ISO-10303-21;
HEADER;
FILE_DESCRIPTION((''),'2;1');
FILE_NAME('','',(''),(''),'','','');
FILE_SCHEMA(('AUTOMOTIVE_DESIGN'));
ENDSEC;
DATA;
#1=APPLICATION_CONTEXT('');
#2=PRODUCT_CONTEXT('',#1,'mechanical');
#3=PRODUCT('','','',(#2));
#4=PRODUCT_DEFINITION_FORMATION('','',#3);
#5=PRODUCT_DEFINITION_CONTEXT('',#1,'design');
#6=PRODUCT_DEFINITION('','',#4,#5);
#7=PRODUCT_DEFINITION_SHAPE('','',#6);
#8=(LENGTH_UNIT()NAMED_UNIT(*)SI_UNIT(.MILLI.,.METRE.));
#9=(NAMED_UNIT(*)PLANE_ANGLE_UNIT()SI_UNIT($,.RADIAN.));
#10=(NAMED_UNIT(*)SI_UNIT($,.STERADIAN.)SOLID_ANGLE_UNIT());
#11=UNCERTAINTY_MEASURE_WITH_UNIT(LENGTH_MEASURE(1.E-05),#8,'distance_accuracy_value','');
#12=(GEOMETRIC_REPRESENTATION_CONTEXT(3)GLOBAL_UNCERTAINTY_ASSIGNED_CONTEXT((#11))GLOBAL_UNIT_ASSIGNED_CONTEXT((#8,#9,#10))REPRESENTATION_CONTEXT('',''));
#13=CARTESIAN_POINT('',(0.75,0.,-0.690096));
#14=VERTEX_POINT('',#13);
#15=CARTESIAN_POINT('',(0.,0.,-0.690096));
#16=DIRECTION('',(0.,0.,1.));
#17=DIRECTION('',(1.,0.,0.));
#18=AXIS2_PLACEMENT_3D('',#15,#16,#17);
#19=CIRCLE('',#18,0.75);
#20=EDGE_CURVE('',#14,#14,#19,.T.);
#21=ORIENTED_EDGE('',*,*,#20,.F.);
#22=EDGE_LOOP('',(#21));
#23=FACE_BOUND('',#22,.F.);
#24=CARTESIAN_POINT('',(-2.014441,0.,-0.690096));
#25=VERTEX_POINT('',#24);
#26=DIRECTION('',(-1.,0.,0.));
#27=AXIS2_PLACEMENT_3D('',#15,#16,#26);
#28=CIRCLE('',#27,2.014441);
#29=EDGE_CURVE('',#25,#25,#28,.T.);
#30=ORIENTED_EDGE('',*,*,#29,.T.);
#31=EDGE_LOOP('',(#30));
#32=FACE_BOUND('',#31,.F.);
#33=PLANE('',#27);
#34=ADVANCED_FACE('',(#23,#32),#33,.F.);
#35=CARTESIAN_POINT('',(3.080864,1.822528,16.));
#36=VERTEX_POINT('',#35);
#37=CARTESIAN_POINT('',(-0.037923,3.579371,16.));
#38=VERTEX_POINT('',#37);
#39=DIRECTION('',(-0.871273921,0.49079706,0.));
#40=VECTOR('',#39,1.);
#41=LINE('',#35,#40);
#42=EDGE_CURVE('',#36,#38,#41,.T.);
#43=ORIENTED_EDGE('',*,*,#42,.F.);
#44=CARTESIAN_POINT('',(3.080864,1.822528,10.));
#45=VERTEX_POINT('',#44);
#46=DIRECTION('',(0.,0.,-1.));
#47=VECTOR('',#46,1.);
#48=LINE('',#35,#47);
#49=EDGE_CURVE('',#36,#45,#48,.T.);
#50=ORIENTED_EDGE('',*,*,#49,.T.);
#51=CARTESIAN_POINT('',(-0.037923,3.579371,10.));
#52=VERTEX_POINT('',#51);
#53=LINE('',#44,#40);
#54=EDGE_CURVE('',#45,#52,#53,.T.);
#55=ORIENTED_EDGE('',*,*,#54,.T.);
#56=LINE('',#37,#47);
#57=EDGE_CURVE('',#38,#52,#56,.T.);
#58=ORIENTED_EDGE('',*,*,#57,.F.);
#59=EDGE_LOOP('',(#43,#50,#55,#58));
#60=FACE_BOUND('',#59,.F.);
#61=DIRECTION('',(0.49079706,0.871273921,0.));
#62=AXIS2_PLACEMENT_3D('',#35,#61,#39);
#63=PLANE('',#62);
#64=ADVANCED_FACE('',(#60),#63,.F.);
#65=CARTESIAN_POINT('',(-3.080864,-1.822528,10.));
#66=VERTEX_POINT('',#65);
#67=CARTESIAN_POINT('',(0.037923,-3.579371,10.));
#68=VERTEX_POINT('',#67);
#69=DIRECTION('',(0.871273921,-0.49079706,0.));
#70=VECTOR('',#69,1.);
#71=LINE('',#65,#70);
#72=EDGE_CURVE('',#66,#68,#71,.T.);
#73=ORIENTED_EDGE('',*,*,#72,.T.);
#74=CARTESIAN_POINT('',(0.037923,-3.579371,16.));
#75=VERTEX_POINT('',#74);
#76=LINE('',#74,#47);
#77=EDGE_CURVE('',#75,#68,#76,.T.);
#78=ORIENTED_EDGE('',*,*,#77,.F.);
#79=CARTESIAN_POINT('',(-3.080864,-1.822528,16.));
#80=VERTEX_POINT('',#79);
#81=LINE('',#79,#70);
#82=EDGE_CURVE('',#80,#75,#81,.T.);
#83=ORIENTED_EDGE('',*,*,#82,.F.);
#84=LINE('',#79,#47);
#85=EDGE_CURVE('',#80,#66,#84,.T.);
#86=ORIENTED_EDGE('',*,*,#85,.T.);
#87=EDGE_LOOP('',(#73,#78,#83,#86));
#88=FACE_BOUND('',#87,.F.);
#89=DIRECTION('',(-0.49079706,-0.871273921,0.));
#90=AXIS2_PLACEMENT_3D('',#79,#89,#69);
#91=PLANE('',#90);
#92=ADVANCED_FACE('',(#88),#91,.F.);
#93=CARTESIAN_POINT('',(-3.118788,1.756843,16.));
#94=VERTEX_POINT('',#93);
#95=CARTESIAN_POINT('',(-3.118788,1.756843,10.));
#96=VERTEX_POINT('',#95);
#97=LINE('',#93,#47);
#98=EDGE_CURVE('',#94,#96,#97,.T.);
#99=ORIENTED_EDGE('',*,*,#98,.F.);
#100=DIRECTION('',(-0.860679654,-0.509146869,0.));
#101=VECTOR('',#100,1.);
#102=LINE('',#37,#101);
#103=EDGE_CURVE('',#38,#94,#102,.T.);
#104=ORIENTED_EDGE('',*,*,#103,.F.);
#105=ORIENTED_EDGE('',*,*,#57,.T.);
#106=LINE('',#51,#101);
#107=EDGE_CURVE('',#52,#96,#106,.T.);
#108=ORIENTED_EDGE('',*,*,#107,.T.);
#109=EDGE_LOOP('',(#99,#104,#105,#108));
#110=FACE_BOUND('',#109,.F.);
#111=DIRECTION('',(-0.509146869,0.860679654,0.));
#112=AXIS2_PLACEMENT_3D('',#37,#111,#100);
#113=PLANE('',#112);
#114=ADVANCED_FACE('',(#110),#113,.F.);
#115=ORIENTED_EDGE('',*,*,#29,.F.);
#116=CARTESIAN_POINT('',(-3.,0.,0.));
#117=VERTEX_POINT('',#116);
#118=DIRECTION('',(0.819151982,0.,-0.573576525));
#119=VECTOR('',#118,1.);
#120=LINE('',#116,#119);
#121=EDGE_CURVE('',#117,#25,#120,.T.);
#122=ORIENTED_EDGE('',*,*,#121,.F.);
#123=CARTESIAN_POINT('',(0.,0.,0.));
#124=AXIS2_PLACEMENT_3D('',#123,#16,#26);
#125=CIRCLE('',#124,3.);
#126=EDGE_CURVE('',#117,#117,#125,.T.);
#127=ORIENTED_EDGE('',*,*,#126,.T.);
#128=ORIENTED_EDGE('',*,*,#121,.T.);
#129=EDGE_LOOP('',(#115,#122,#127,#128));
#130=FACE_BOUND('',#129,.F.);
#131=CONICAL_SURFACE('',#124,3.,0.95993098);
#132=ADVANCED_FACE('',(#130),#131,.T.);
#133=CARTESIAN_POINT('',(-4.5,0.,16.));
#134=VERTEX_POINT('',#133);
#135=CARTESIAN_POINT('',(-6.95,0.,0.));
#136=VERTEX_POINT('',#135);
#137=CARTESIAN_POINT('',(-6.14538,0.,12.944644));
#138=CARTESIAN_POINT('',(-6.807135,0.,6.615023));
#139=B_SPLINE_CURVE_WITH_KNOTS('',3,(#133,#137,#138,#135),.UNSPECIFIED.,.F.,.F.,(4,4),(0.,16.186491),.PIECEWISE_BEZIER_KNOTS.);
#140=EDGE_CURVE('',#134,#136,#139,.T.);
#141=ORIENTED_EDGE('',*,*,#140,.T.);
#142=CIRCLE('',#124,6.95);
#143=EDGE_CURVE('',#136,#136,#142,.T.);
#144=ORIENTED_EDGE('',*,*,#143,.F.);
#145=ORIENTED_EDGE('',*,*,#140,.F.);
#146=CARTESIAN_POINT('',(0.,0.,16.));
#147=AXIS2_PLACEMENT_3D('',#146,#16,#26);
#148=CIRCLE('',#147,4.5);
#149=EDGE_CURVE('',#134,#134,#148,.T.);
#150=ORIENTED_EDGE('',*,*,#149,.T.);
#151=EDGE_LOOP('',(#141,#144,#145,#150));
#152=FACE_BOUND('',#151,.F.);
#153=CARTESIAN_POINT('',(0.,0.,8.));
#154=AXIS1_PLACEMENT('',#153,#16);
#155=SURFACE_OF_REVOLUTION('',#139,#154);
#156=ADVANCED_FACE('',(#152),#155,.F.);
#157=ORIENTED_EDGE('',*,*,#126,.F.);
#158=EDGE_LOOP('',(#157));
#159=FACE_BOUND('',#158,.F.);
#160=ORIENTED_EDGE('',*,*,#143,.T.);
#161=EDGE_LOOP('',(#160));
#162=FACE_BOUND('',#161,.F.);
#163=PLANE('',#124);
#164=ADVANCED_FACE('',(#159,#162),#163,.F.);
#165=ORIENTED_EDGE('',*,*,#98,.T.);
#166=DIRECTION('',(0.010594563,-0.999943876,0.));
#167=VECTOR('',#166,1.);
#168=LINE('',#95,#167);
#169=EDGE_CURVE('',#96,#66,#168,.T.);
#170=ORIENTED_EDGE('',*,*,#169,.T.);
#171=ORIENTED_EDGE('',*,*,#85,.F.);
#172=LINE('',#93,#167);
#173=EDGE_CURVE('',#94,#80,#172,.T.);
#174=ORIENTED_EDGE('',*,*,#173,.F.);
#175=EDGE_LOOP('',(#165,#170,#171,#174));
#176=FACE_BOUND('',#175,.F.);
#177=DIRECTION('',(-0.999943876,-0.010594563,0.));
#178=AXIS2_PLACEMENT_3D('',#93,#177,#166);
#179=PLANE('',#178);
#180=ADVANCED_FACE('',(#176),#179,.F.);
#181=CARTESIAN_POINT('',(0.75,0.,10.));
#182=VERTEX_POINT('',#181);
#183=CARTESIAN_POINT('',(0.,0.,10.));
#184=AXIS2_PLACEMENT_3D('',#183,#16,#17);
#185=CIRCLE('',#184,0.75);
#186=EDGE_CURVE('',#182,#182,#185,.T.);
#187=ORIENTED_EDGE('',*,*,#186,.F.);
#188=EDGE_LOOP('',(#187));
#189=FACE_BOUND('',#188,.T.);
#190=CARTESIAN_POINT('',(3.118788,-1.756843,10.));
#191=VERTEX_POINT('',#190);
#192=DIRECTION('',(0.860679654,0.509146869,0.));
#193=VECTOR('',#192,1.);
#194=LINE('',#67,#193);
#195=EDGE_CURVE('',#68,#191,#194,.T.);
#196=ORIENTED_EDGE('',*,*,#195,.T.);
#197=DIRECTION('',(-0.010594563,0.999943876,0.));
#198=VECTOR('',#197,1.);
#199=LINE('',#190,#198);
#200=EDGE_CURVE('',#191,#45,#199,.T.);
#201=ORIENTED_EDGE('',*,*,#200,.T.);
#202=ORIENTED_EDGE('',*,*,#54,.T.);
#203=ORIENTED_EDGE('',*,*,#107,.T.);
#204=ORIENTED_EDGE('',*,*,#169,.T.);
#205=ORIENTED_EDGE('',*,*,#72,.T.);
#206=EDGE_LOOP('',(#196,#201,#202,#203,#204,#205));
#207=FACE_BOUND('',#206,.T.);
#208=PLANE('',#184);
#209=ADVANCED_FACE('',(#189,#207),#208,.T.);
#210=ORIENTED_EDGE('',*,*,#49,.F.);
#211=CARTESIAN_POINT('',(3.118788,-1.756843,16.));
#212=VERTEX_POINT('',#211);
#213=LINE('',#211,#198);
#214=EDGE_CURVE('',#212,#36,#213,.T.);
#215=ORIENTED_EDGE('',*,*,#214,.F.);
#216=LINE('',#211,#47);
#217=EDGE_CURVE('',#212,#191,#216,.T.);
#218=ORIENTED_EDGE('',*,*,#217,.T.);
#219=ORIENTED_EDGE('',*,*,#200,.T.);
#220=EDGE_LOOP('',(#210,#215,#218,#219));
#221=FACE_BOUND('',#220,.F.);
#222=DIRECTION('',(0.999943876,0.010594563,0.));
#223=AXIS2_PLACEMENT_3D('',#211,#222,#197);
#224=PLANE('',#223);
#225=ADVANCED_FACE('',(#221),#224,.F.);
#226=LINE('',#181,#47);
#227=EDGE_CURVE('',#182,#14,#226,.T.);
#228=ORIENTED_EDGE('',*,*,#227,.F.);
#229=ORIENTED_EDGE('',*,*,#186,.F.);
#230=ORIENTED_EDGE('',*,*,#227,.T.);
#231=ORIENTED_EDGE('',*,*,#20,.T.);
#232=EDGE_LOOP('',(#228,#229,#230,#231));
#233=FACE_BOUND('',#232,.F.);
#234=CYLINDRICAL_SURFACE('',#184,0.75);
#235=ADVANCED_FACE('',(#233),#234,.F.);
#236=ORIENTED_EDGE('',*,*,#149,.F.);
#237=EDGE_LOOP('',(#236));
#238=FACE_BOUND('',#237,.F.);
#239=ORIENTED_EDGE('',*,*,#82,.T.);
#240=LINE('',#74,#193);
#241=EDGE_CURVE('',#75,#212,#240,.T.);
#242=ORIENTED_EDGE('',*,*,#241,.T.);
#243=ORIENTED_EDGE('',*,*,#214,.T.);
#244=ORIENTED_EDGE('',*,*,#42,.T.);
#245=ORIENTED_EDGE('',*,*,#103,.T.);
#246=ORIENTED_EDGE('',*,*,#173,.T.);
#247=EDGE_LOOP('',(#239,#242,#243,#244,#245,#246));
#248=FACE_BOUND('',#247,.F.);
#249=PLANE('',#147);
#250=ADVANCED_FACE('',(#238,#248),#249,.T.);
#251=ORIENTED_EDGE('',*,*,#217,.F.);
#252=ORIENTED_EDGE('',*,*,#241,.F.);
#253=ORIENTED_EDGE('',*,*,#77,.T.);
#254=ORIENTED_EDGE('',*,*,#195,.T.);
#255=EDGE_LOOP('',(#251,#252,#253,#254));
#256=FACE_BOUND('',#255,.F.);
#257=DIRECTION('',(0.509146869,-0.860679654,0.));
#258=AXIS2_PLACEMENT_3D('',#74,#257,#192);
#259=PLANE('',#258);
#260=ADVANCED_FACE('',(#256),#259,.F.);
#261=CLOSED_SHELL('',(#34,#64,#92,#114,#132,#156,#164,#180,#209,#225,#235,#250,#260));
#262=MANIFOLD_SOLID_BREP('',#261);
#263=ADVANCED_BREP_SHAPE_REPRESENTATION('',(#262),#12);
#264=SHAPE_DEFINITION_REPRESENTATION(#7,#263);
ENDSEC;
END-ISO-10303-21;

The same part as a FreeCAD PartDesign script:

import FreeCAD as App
import Part
import Sketcher
Q = App.Units.Quantity


def add_polygon(sketch, points):
    """Adds a closed chain of lines whose ends are joined by coincident constraints."""
    first, n = sketch.GeometryCount, len(points)
    for a, b in zip(points, points[1:] + points[:1]):
        sketch.addGeometry(Part.LineSegment(App.Vector(*a, 0), App.Vector(*b, 0)), False)
    for i in range(n):
        sketch.addConstraint(Sketcher.Constraint("Coincident", first + i, 2, first + (i + 1) % n, 1))

doc = App.newDocument("Part")
body = doc.addObject("PartDesign::Body", "Body")

sketch1 = body.newObject("Sketcher::SketchObject", "Sketch")
sketch1.AttachmentSupport = (doc.getObject("XZ_Plane"), [""])
sketch1.MapMode = "FlatFace"
sketch1.addGeometry([
    Part.LineSegment(App.Vector(0, -0.690096, 0), App.Vector(0, 16, 0)),
    Part.LineSegment(App.Vector(0, 16, 0), App.Vector(-4.5, 16, 0)),
    Part.BSplineCurve([App.Vector(-4.5, 16, 0), App.Vector(-6.14538, 12.944644, 0), App.Vector(-6.807135, 6.615023, 0), App.Vector(-6.95, 0, 0)], [4, 4], [0, 16.186491], False, 3, [1, 1, 1, 1], False),
    Part.LineSegment(App.Vector(-6.95, 0, 0), App.Vector(-3, 0, 0)),
    Part.LineSegment(App.Vector(-3, 0, 0), App.Vector(-2.014441, -0.690096, 0)),
    Part.LineSegment(App.Vector(-2.014441, -0.690096, 0), App.Vector(0, -0.690096, 0)),
], False)
sketch1.addConstraint([
    Sketcher.Constraint("Block", 2),
    Sketcher.Constraint("Coincident", 0, 2, 1, 1),
    Sketcher.Constraint("Coincident", 1, 2, 2, 1),
    Sketcher.Constraint("Coincident", 2, 2, 3, 1),
    Sketcher.Constraint("Coincident", 3, 2, 4, 1),
    Sketcher.Constraint("Coincident", 4, 2, 5, 1),
    Sketcher.Constraint("Coincident", 5, 2, 0, 1),
    Sketcher.Constraint("Vertical", 0),
    Sketcher.Constraint("Horizontal", 1),
    Sketcher.Constraint("Horizontal", 3),
    Sketcher.Constraint("Horizontal", 5),
    Sketcher.Constraint("PointOnObject", 0, 2, -2),
    Sketcher.Constraint("Angle", 4, Q("-35.000006 deg")),
    Sketcher.Constraint("DistanceX", 3, 2, -1, 1, 3.0),
    Sketcher.Constraint("DistanceX", 5, 1, 5, 2, 2.014441),
])
revolution = body.newObject("PartDesign::Revolution", "Revolution")
revolution.Profile = sketch1
revolution.ReferenceAxis = (sketch1, ["V_Axis"])
revolution.Angle = 360

sketch2 = body.newObject("Sketcher::SketchObject", "Sketch001")
sketch2.AttachmentSupport = (doc.getObject("XY_Plane"), [""])
sketch2.MapMode = "FlatFace"
sketch2.AttachmentOffset = App.Placement(App.Vector(0, 0, 16), App.Rotation())
add_polygon(sketch2, [(-0.037923, 3.579371), (-3.118788, 1.756843), (-3.080864, -1.822528), (0.037923, -3.579371), (3.118788, -1.756843), (3.080864, 1.822528)])
sketch2.addConstraint([
    Sketcher.Constraint("Symmetric", 0, 2, 3, 2, -1, 1),
    Sketcher.Constraint("Symmetric", 1, 2, 4, 2, -1, 1),
    Sketcher.Constraint("Symmetric", 2, 2, 5, 2, -1, 1),
    Sketcher.Constraint("Equal", 0, 1),
    Sketcher.Constraint("Equal", 1, 2),
    Sketcher.Constraint("DistanceY", 2, 2, 4, 2, 5.401899),
    Sketcher.Constraint("Distance", 1, 3.579572),
    Sketcher.Constraint("DistanceY", 2, 2, -1, 1, 3.579371),
    Sketcher.Constraint("DistanceY", 1, 2, 0, 2, 3.579371),
])
pocket1 = body.newObject("PartDesign::Pocket", "Pocket")
pocket1.Profile = sketch2
pocket1.Length = 6

sketch3 = body.newObject("Sketcher::SketchObject", "Sketch002")
sketch3.AttachmentSupport = (doc.getObject("XY_Plane"), [""])
sketch3.MapMode = "FlatFace"
sketch3.AttachmentOffset = App.Placement(App.Vector(0, 0, 10), App.Rotation())
sketch3.addGeometry(Part.Circle(App.Vector(0, 0, 0), App.Vector(0, 0, 1), 0.75), False)
sketch3.addConstraint([
    Sketcher.Constraint("Coincident", 0, 3, -1, 1),
    Sketcher.Constraint("Diameter", 0, 1.5),
])
pocket2 = body.newObject("PartDesign::Pocket", "Pocket001")
pocket2.Profile = sketch3
pocket2.Type = "ThroughAll"

doc.recompute()
